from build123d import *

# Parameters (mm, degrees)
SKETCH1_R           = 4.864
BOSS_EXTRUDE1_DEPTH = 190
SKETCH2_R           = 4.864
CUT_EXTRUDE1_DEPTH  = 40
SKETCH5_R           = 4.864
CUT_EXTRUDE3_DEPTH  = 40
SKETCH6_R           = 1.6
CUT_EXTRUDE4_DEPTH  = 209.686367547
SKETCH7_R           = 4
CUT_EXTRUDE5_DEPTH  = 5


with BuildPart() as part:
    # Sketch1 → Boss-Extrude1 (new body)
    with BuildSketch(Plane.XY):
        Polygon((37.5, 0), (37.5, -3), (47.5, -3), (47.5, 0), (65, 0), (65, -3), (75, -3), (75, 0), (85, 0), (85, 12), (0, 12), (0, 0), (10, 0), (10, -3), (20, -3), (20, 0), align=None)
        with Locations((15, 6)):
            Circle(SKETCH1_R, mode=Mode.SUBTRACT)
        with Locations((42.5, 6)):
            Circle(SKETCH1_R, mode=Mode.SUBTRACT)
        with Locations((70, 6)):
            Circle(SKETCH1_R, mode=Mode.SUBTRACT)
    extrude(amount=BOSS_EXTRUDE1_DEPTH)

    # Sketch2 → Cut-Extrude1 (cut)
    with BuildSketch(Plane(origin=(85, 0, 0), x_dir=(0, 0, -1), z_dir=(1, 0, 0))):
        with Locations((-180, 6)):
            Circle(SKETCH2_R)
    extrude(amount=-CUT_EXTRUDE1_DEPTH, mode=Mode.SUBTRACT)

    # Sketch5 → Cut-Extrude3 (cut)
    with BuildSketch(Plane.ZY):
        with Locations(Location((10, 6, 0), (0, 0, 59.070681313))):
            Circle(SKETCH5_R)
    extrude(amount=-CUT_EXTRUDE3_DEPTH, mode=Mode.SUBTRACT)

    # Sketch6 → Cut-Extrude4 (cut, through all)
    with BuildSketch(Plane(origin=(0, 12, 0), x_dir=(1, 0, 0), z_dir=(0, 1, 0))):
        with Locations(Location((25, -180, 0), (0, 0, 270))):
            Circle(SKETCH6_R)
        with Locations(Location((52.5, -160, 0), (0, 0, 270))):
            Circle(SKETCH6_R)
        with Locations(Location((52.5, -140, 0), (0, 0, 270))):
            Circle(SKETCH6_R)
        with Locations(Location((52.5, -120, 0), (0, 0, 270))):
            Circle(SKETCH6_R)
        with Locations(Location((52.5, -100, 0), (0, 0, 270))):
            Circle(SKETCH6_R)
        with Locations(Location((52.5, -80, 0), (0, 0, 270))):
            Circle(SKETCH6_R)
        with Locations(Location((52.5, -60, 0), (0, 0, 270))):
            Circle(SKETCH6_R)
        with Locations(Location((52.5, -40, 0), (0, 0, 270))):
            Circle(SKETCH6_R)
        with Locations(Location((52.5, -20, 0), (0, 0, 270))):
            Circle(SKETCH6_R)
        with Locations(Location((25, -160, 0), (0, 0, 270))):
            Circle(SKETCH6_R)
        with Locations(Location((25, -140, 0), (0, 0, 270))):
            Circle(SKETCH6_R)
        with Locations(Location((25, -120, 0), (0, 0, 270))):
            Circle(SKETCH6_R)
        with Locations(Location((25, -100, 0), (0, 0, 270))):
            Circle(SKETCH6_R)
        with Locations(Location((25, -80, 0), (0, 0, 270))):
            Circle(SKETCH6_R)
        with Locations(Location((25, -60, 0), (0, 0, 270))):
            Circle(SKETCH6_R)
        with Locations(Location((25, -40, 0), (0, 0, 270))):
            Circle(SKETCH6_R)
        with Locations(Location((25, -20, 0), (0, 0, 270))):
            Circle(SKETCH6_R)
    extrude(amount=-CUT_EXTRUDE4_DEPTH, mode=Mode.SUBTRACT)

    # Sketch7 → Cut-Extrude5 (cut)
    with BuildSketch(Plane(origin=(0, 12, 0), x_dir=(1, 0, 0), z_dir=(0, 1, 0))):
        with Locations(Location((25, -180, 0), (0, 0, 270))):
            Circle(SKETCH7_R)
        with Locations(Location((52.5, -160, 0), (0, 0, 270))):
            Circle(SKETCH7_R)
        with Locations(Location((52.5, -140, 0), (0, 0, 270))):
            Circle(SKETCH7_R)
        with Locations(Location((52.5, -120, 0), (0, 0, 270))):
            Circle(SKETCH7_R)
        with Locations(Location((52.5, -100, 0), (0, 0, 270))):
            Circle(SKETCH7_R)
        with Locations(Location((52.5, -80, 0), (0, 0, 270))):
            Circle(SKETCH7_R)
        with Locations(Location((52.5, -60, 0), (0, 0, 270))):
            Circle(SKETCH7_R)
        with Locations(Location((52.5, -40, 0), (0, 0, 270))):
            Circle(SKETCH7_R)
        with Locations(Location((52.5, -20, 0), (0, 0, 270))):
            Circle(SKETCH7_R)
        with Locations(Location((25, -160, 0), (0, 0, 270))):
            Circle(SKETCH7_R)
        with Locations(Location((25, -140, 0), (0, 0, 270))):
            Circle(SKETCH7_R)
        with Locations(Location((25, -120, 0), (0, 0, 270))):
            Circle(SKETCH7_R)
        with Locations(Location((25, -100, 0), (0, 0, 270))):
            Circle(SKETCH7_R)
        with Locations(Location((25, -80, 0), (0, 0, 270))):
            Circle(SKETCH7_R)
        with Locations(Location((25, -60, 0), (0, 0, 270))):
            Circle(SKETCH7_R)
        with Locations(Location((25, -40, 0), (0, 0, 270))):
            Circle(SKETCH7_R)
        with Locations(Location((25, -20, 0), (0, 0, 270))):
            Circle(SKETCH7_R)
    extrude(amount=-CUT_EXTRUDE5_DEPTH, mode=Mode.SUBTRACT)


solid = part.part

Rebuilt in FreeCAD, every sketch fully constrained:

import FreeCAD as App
import Part
import Sketcher

V = App.Vector
Q = App.Units.Quantity


def add_polygon(sketch, points):
    """Adds a closed chain of lines whose ends are joined by coincident constraints."""
    first, n = sketch.GeometryCount, len(points)
    for a, b in zip(points, points[1:] + points[:1]):
        sketch.addGeometry(Part.LineSegment(App.Vector(*a, 0), App.Vector(*b, 0)), False)
    for i in range(n):
        sketch.addConstraint(Sketcher.Constraint("Coincident", first + i, 2, first + (i + 1) % n, 1))

doc = App.newDocument("Part")
body = doc.addObject("PartDesign::Body", "Body")

# Sketch on XY plane
sketch1 = body.newObject("Sketcher::SketchObject", "Sketch")
sketch1.AttachmentSupport = (doc.getObject("XY_Plane"), [""])
sketch1.MapMode = "FlatFace"
add_polygon(sketch1, [(37.5, 0), (37.5, -3), (47.5, -3), (47.5, 0), (65, 0), (65, -3), (75, -3), (75, 0), (85, 0), (85, 12), (0, 12), (0, 0), (10, 0), (10, -3), (20, -3), (20, 0)])  # lines 0-15
sketch1.addGeometry(Part.Circle(V(15, 6, 0), V(0, 0, 1), 4.864), False)  # 16
sketch1.addGeometry(Part.Circle(V(42.5, 6, 0), V(0, 0, 1), 4.864), False)  # 17
sketch1.addGeometry(Part.Circle(V(70, 6, 0), V(0, 0, 1), 4.864), False)  # 18
sketch1.addConstraint([
    Sketcher.Constraint("Vertical", 0),
    Sketcher.Constraint("Horizontal", 1),
    Sketcher.Constraint("Vertical", 2),
    Sketcher.Constraint("Horizontal", 3),
    Sketcher.Constraint("Vertical", 4),
    Sketcher.Constraint("Horizontal", 5),
    Sketcher.Constraint("Vertical", 6),
    Sketcher.Constraint("Horizontal", 7),
    Sketcher.Constraint("Vertical", 8),
    Sketcher.Constraint("Horizontal", 9),
    Sketcher.Constraint("Vertical", 10),
    Sketcher.Constraint("Horizontal", 11),
    Sketcher.Constraint("Vertical", 12),
    Sketcher.Constraint("Horizontal", 13),
    Sketcher.Constraint("Vertical", 14),
    Sketcher.Constraint("Horizontal", 15),
    Sketcher.Constraint("Coincident", 10, 2, -1, 1),
    Sketcher.Constraint("Equal", 16, 17),
    Sketcher.Constraint("Equal", 17, 18),
    Sketcher.Constraint("PointOnObject", 2, 2, -1),
    Sketcher.Constraint("PointOnObject", 6, 2, -1),
    Sketcher.Constraint("PointOnObject", 14, 2, -1),
    Sketcher.Constraint("Horizontal", 16, 3, 17, 3),
    Sketcher.Constraint("Horizontal", 17, 3, 18, 3),
    Sketcher.Constraint("Horizontal", 1, 2, 4, 2),
    Sketcher.Constraint("Horizontal", 5, 2, 12, 2),
    Sketcher.Constraint("Equal", 1, 5),
    Sketcher.Constraint("Equal", 5, 7),
    Sketcher.Constraint("Equal", 7, 11),
    Sketcher.Constraint("Equal", 11, 13),
    Sketcher.Constraint("Equal", 3, 15),
    Sketcher.Constraint("DistanceX", 1, 1, 1, 2, Q("10 mm")),
    Sketcher.Constraint("DistanceX", 9, 2, 9, 1, Q("85 mm")),
    Sketcher.Constraint("DistanceY", 0, 2, 0, 1, Q("3 mm")),
    Sketcher.Constraint("DistanceY", 8, 1, 8, 2, Q("12 mm")),
    Sketcher.Constraint("Diameter", 16, Q("9.728 mm")),
    Sketcher.Constraint("DistanceX", -1, 1, 16, 3, Q("15 mm")),
    Sketcher.Constraint("DistanceY", -1, 1, 16, 3, Q("6 mm")),
    Sketcher.Constraint("DistanceX", -1, 1, 18, 3, Q("70 mm")),
    Sketcher.Constraint("DistanceX", 0, 2, 17, 3, Q("5 mm")),
])
pad1 = body.newObject("PartDesign::Pad", "Pad")
pad1.Profile = sketch1
pad1.Length = 190

# Sketch on YZ plane
sketch2 = body.newObject("Sketcher::SketchObject", "Sketch001")
sketch2.AttachmentSupport = (doc.getObject("YZ_Plane"), [""])
sketch2.MapMode = "FlatFace"
sketch2.AttachmentOffset = App.Placement(V(0, 0, 85), App.Rotation())
sketch2.addGeometry(Part.Circle(V(6, 180, 0), V(0, 0, 1), 4.864), False)
sketch2.addConstraint([
    Sketcher.Constraint("Diameter", 0, Q("9.728 mm")),
    Sketcher.Constraint("DistanceX", -1, 1, 0, 3, Q("6 mm")),
    Sketcher.Constraint("DistanceY", -1, 1, 0, 3, Q("180 mm")),
])
pocket1 = body.newObject("PartDesign::Pocket", "Pocket")
pocket1.Profile = sketch2
pocket1.Length = 40

# Sketch on YZ plane
sketch3 = body.newObject("Sketcher::SketchObject", "Sketch002")
sketch3.AttachmentSupport = (doc.getObject("YZ_Plane"), [""])
sketch3.MapMode = "FlatFace"
sketch3.addGeometry(Part.Circle(V(6, 10, 0), V(0, 0, 1), 4.864), False)
sketch3.addConstraint([
    Sketcher.Constraint("Diameter", 0, Q("9.728 mm")),
    Sketcher.Constraint("DistanceX", -1, 1, 0, 3, Q("6 mm")),
    Sketcher.Constraint("DistanceY", -1, 1, 0, 3, Q("10 mm")),
])
pocket2 = body.newObject("PartDesign::Pocket", "Pocket001")
pocket2.Profile = sketch3
pocket2.Length = 40
pocket2.Reversed = True

# Sketch on XZ plane
sketch4 = body.newObject("Sketcher::SketchObject", "Sketch003")
sketch4.AttachmentSupport = (doc.getObject("XZ_Plane"), [""])
sketch4.MapMode = "FlatFace"
sketch4.AttachmentOffset = App.Placement(V(0, 0, -12), App.Rotation())
sketch4.addGeometry([
    Part.Circle(V(25, 180, 0), V(0, 0, 1), 1.6),  # 0
    Part.Circle(V(52.5, 160, 0), V(0, 0, 1), 1.6),  # 1
    Part.Circle(V(52.5, 140, 0), V(0, 0, 1), 1.6),  # 2
    Part.Circle(V(52.5, 120, 0), V(0, 0, 1), 1.6),  # 3
    Part.Circle(V(52.5, 100, 0), V(0, 0, 1), 1.6),  # 4
    Part.Circle(V(52.5, 80, 0), V(0, 0, 1), 1.6),  # 5
    Part.Circle(V(52.5, 60, 0), V(0, 0, 1), 1.6),  # 6
    Part.Circle(V(52.5, 40, 0), V(0, 0, 1), 1.6),  # 7
    Part.Circle(V(52.5, 20, 0), V(0, 0, 1), 1.6),  # 8
    Part.Circle(V(25, 160, 0), V(0, 0, 1), 1.6),  # 9
    Part.Circle(V(25, 140, 0), V(0, 0, 1), 1.6),  # 10
    Part.Circle(V(25, 120, 0), V(0, 0, 1), 1.6),  # 11
    Part.Circle(V(25, 100, 0), V(0, 0, 1), 1.6),  # 12
    Part.Circle(V(25, 80, 0), V(0, 0, 1), 1.6),  # 13
    Part.Circle(V(25, 60, 0), V(0, 0, 1), 1.6),  # 14
    Part.Circle(V(25, 40, 0), V(0, 0, 1), 1.6),  # 15
    Part.Circle(V(25, 20, 0), V(0, 0, 1), 1.6),  # 16
], False)
sketch4.addConstraint([
    Sketcher.Constraint("Equal", 0, 1),
    Sketcher.Constraint("Equal", 1, 2),
    Sketcher.Constraint("Equal", 2, 3),
    Sketcher.Constraint("Equal", 3, 4),
    Sketcher.Constraint("Equal", 4, 5),
    Sketcher.Constraint("Equal", 5, 6),
    Sketcher.Constraint("Equal", 6, 7),
    Sketcher.Constraint("Equal", 7, 8),
    Sketcher.Constraint("Equal", 8, 9),
    Sketcher.Constraint("Equal", 9, 10),
    Sketcher.Constraint("Equal", 10, 11),
    Sketcher.Constraint("Equal", 11, 12),
    Sketcher.Constraint("Equal", 12, 13),
    Sketcher.Constraint("Equal", 13, 14),
    Sketcher.Constraint("Equal", 14, 15),
    Sketcher.Constraint("Equal", 15, 16),
    Sketcher.Constraint("Horizontal", 1, 3, 9, 3),
    Sketcher.Constraint("Horizontal", 2, 3, 10, 3),
    Sketcher.Constraint("Horizontal", 3, 3, 11, 3),
    Sketcher.Constraint("Horizontal", 4, 3, 12, 3),
    Sketcher.Constraint("Horizontal", 5, 3, 13, 3),
    Sketcher.Constraint("Horizontal", 6, 3, 14, 3),
    Sketcher.Constraint("Horizontal", 7, 3, 15, 3),
    Sketcher.Constraint("Horizontal", 8, 3, 16, 3),
    Sketcher.Constraint("Vertical", 1, 3, 2, 3),
    Sketcher.Constraint("Vertical", 2, 3, 3, 3),
    Sketcher.Constraint("Vertical", 3, 3, 4, 3),
    Sketcher.Constraint("Vertical", 4, 3, 5, 3),
    Sketcher.Constraint("Vertical", 5, 3, 6, 3),
    Sketcher.Constraint("Vertical", 6, 3, 7, 3),
    Sketcher.Constraint("Vertical", 7, 3, 8, 3),
    Sketcher.Constraint("Vertical", 0, 3, 9, 3),
    Sketcher.Constraint("Vertical", 9, 3, 10, 3),
    Sketcher.Constraint("Vertical", 10, 3, 11, 3),
    Sketcher.Constraint("Vertical", 11, 3, 12, 3),
    Sketcher.Constraint("Vertical", 12, 3, 13, 3),
    Sketcher.Constraint("Vertical", 13, 3, 14, 3),
    Sketcher.Constraint("Vertical", 14, 3, 15, 3),
    Sketcher.Constraint("Vertical", 15, 3, 16, 3),
    Sketcher.Constraint("Diameter", 0, Q("3.2 mm")),
    Sketcher.Constraint("DistanceX", -1, 1, 0, 3, Q("25 mm")),
    Sketcher.Constraint("DistanceY", -1, 1, 0, 3, Q("180 mm")),
    Sketcher.Constraint("DistanceY", -1, 1, 1, 3, Q("160 mm")),
    Sketcher.Constraint("DistanceY", -1, 1, 2, 3, Q("140 mm")),
    Sketcher.Constraint("DistanceY", -1, 1, 3, 3, Q("120 mm")),
    Sketcher.Constraint("DistanceY", -1, 1, 4, 3, Q("100 mm")),
    Sketcher.Constraint("DistanceY", -1, 1, 5, 3, Q("80 mm")),
    Sketcher.Constraint("DistanceY", -1, 1, 6, 3, Q("60 mm")),
    Sketcher.Constraint("DistanceY", -1, 1, 7, 3, Q("40 mm")),
    Sketcher.Constraint("DistanceY", -1, 1, 8, 3, Q("20 mm")),
    Sketcher.Constraint("DistanceX", -1, 1, 1, 3, Q("52.5 mm")),
])
pocket3 = body.newObject("PartDesign::Pocket", "Pocket002")
pocket3.Profile = sketch4
pocket3.Type = "ThroughAll"
pocket3.Reversed = True

# Sketch on XZ plane
sketch5 = body.newObject("Sketcher::SketchObject", "Sketch004")
sketch5.AttachmentSupport = (doc.getObject("XZ_Plane"), [""])
sketch5.MapMode = "FlatFace"
sketch5.AttachmentOffset = App.Placement(V(0, 0, -12), App.Rotation())
sketch5.addGeometry([
    Part.Circle(V(25, 180, 0), V(0, 0, 1), 4),  # 0
    Part.Circle(V(52.5, 160, 0), V(0, 0, 1), 4),  # 1
    Part.Circle(V(52.5, 140, 0), V(0, 0, 1), 4),  # 2
    Part.Circle(V(52.5, 120, 0), V(0, 0, 1), 4),  # 3
    Part.Circle(V(52.5, 100, 0), V(0, 0, 1), 4),  # 4
    Part.Circle(V(52.5, 80, 0), V(0, 0, 1), 4),  # 5
    Part.Circle(V(52.5, 60, 0), V(0, 0, 1), 4),  # 6
    Part.Circle(V(52.5, 40, 0), V(0, 0, 1), 4),  # 7
    Part.Circle(V(52.5, 20, 0), V(0, 0, 1), 4),  # 8
    Part.Circle(V(25, 160, 0), V(0, 0, 1), 4),  # 9
    Part.Circle(V(25, 140, 0), V(0, 0, 1), 4),  # 10
    Part.Circle(V(25, 120, 0), V(0, 0, 1), 4),  # 11
    Part.Circle(V(25, 100, 0), V(0, 0, 1), 4),  # 12
    Part.Circle(V(25, 80, 0), V(0, 0, 1), 4),  # 13
    Part.Circle(V(25, 60, 0), V(0, 0, 1), 4),  # 14
    Part.Circle(V(25, 40, 0), V(0, 0, 1), 4),  # 15
    Part.Circle(V(25, 20, 0), V(0, 0, 1), 4),  # 16
], False)
sketch5.addConstraint([
    Sketcher.Constraint("Equal", 0, 1),
    Sketcher.Constraint("Equal", 1, 2),
    Sketcher.Constraint("Equal", 2, 3),
    Sketcher.Constraint("Equal", 3, 4),
    Sketcher.Constraint("Equal", 4, 5),
    Sketcher.Constraint("Equal", 5, 6),
    Sketcher.Constraint("Equal", 6, 7),
    Sketcher.Constraint("Equal", 7, 8),
    Sketcher.Constraint("Equal", 8, 9),
    Sketcher.Constraint("Equal", 9, 10),
    Sketcher.Constraint("Equal", 10, 11),
    Sketcher.Constraint("Equal", 11, 12),
    Sketcher.Constraint("Equal", 12, 13),
    Sketcher.Constraint("Equal", 13, 14),
    Sketcher.Constraint("Equal", 14, 15),
    Sketcher.Constraint("Equal", 15, 16),
    Sketcher.Constraint("Horizontal", 1, 3, 9, 3),
    Sketcher.Constraint("Horizontal", 2, 3, 10, 3),
    Sketcher.Constraint("Horizontal", 3, 3, 11, 3),
    Sketcher.Constraint("Horizontal", 4, 3, 12, 3),
    Sketcher.Constraint("Horizontal", 5, 3, 13, 3),
    Sketcher.Constraint("Horizontal", 6, 3, 14, 3),
    Sketcher.Constraint("Horizontal", 7, 3, 15, 3),
    Sketcher.Constraint("Horizontal", 8, 3, 16, 3),
    Sketcher.Constraint("Vertical", 1, 3, 2, 3),
    Sketcher.Constraint("Vertical", 2, 3, 3, 3),
    Sketcher.Constraint("Vertical", 3, 3, 4, 3),
    Sketcher.Constraint("Vertical", 4, 3, 5, 3),
    Sketcher.Constraint("Vertical", 5, 3, 6, 3),
    Sketcher.Constraint("Vertical", 6, 3, 7, 3),
    Sketcher.Constraint("Vertical", 7, 3, 8, 3),
    Sketcher.Constraint("Vertical", 0, 3, 9, 3),
    Sketcher.Constraint("Vertical", 9, 3, 10, 3),
    Sketcher.Constraint("Vertical", 10, 3, 11, 3),
    Sketcher.Constraint("Vertical", 11, 3, 12, 3),
    Sketcher.Constraint("Vertical", 12, 3, 13, 3),
    Sketcher.Constraint("Vertical", 13, 3, 14, 3),
    Sketcher.Constraint("Vertical", 14, 3, 15, 3),
    Sketcher.Constraint("Vertical", 15, 3, 16, 3),
    Sketcher.Constraint("Diameter", 0, Q("8 mm")),
    Sketcher.Constraint("DistanceX", -1, 1, 0, 3, Q("25 mm")),
    Sketcher.Constraint("DistanceY", -1, 1, 0, 3, Q("180 mm")),
    Sketcher.Constraint("DistanceY", -1, 1, 1, 3, Q("160 mm")),
    Sketcher.Constraint("DistanceY", -1, 1, 2, 3, Q("140 mm")),
    Sketcher.Constraint("DistanceY", -1, 1, 3, 3, Q("120 mm")),
    Sketcher.Constraint("DistanceY", -1, 1, 4, 3, Q("100 mm")),
    Sketcher.Constraint("DistanceY", -1, 1, 5, 3, Q("80 mm")),
    Sketcher.Constraint("DistanceY", -1, 1, 6, 3, Q("60 mm")),
    Sketcher.Constraint("DistanceY", -1, 1, 7, 3, Q("40 mm")),
    Sketcher.Constraint("DistanceY", -1, 1, 8, 3, Q("20 mm")),
    Sketcher.Constraint("DistanceX", -1, 1, 1, 3, Q("52.5 mm")),
])
pocket4 = body.newObject("PartDesign::Pocket", "Pocket003")
pocket4.Profile = sketch5
pocket4.Length = 5
pocket4.Reversed = True

doc.recompute()
